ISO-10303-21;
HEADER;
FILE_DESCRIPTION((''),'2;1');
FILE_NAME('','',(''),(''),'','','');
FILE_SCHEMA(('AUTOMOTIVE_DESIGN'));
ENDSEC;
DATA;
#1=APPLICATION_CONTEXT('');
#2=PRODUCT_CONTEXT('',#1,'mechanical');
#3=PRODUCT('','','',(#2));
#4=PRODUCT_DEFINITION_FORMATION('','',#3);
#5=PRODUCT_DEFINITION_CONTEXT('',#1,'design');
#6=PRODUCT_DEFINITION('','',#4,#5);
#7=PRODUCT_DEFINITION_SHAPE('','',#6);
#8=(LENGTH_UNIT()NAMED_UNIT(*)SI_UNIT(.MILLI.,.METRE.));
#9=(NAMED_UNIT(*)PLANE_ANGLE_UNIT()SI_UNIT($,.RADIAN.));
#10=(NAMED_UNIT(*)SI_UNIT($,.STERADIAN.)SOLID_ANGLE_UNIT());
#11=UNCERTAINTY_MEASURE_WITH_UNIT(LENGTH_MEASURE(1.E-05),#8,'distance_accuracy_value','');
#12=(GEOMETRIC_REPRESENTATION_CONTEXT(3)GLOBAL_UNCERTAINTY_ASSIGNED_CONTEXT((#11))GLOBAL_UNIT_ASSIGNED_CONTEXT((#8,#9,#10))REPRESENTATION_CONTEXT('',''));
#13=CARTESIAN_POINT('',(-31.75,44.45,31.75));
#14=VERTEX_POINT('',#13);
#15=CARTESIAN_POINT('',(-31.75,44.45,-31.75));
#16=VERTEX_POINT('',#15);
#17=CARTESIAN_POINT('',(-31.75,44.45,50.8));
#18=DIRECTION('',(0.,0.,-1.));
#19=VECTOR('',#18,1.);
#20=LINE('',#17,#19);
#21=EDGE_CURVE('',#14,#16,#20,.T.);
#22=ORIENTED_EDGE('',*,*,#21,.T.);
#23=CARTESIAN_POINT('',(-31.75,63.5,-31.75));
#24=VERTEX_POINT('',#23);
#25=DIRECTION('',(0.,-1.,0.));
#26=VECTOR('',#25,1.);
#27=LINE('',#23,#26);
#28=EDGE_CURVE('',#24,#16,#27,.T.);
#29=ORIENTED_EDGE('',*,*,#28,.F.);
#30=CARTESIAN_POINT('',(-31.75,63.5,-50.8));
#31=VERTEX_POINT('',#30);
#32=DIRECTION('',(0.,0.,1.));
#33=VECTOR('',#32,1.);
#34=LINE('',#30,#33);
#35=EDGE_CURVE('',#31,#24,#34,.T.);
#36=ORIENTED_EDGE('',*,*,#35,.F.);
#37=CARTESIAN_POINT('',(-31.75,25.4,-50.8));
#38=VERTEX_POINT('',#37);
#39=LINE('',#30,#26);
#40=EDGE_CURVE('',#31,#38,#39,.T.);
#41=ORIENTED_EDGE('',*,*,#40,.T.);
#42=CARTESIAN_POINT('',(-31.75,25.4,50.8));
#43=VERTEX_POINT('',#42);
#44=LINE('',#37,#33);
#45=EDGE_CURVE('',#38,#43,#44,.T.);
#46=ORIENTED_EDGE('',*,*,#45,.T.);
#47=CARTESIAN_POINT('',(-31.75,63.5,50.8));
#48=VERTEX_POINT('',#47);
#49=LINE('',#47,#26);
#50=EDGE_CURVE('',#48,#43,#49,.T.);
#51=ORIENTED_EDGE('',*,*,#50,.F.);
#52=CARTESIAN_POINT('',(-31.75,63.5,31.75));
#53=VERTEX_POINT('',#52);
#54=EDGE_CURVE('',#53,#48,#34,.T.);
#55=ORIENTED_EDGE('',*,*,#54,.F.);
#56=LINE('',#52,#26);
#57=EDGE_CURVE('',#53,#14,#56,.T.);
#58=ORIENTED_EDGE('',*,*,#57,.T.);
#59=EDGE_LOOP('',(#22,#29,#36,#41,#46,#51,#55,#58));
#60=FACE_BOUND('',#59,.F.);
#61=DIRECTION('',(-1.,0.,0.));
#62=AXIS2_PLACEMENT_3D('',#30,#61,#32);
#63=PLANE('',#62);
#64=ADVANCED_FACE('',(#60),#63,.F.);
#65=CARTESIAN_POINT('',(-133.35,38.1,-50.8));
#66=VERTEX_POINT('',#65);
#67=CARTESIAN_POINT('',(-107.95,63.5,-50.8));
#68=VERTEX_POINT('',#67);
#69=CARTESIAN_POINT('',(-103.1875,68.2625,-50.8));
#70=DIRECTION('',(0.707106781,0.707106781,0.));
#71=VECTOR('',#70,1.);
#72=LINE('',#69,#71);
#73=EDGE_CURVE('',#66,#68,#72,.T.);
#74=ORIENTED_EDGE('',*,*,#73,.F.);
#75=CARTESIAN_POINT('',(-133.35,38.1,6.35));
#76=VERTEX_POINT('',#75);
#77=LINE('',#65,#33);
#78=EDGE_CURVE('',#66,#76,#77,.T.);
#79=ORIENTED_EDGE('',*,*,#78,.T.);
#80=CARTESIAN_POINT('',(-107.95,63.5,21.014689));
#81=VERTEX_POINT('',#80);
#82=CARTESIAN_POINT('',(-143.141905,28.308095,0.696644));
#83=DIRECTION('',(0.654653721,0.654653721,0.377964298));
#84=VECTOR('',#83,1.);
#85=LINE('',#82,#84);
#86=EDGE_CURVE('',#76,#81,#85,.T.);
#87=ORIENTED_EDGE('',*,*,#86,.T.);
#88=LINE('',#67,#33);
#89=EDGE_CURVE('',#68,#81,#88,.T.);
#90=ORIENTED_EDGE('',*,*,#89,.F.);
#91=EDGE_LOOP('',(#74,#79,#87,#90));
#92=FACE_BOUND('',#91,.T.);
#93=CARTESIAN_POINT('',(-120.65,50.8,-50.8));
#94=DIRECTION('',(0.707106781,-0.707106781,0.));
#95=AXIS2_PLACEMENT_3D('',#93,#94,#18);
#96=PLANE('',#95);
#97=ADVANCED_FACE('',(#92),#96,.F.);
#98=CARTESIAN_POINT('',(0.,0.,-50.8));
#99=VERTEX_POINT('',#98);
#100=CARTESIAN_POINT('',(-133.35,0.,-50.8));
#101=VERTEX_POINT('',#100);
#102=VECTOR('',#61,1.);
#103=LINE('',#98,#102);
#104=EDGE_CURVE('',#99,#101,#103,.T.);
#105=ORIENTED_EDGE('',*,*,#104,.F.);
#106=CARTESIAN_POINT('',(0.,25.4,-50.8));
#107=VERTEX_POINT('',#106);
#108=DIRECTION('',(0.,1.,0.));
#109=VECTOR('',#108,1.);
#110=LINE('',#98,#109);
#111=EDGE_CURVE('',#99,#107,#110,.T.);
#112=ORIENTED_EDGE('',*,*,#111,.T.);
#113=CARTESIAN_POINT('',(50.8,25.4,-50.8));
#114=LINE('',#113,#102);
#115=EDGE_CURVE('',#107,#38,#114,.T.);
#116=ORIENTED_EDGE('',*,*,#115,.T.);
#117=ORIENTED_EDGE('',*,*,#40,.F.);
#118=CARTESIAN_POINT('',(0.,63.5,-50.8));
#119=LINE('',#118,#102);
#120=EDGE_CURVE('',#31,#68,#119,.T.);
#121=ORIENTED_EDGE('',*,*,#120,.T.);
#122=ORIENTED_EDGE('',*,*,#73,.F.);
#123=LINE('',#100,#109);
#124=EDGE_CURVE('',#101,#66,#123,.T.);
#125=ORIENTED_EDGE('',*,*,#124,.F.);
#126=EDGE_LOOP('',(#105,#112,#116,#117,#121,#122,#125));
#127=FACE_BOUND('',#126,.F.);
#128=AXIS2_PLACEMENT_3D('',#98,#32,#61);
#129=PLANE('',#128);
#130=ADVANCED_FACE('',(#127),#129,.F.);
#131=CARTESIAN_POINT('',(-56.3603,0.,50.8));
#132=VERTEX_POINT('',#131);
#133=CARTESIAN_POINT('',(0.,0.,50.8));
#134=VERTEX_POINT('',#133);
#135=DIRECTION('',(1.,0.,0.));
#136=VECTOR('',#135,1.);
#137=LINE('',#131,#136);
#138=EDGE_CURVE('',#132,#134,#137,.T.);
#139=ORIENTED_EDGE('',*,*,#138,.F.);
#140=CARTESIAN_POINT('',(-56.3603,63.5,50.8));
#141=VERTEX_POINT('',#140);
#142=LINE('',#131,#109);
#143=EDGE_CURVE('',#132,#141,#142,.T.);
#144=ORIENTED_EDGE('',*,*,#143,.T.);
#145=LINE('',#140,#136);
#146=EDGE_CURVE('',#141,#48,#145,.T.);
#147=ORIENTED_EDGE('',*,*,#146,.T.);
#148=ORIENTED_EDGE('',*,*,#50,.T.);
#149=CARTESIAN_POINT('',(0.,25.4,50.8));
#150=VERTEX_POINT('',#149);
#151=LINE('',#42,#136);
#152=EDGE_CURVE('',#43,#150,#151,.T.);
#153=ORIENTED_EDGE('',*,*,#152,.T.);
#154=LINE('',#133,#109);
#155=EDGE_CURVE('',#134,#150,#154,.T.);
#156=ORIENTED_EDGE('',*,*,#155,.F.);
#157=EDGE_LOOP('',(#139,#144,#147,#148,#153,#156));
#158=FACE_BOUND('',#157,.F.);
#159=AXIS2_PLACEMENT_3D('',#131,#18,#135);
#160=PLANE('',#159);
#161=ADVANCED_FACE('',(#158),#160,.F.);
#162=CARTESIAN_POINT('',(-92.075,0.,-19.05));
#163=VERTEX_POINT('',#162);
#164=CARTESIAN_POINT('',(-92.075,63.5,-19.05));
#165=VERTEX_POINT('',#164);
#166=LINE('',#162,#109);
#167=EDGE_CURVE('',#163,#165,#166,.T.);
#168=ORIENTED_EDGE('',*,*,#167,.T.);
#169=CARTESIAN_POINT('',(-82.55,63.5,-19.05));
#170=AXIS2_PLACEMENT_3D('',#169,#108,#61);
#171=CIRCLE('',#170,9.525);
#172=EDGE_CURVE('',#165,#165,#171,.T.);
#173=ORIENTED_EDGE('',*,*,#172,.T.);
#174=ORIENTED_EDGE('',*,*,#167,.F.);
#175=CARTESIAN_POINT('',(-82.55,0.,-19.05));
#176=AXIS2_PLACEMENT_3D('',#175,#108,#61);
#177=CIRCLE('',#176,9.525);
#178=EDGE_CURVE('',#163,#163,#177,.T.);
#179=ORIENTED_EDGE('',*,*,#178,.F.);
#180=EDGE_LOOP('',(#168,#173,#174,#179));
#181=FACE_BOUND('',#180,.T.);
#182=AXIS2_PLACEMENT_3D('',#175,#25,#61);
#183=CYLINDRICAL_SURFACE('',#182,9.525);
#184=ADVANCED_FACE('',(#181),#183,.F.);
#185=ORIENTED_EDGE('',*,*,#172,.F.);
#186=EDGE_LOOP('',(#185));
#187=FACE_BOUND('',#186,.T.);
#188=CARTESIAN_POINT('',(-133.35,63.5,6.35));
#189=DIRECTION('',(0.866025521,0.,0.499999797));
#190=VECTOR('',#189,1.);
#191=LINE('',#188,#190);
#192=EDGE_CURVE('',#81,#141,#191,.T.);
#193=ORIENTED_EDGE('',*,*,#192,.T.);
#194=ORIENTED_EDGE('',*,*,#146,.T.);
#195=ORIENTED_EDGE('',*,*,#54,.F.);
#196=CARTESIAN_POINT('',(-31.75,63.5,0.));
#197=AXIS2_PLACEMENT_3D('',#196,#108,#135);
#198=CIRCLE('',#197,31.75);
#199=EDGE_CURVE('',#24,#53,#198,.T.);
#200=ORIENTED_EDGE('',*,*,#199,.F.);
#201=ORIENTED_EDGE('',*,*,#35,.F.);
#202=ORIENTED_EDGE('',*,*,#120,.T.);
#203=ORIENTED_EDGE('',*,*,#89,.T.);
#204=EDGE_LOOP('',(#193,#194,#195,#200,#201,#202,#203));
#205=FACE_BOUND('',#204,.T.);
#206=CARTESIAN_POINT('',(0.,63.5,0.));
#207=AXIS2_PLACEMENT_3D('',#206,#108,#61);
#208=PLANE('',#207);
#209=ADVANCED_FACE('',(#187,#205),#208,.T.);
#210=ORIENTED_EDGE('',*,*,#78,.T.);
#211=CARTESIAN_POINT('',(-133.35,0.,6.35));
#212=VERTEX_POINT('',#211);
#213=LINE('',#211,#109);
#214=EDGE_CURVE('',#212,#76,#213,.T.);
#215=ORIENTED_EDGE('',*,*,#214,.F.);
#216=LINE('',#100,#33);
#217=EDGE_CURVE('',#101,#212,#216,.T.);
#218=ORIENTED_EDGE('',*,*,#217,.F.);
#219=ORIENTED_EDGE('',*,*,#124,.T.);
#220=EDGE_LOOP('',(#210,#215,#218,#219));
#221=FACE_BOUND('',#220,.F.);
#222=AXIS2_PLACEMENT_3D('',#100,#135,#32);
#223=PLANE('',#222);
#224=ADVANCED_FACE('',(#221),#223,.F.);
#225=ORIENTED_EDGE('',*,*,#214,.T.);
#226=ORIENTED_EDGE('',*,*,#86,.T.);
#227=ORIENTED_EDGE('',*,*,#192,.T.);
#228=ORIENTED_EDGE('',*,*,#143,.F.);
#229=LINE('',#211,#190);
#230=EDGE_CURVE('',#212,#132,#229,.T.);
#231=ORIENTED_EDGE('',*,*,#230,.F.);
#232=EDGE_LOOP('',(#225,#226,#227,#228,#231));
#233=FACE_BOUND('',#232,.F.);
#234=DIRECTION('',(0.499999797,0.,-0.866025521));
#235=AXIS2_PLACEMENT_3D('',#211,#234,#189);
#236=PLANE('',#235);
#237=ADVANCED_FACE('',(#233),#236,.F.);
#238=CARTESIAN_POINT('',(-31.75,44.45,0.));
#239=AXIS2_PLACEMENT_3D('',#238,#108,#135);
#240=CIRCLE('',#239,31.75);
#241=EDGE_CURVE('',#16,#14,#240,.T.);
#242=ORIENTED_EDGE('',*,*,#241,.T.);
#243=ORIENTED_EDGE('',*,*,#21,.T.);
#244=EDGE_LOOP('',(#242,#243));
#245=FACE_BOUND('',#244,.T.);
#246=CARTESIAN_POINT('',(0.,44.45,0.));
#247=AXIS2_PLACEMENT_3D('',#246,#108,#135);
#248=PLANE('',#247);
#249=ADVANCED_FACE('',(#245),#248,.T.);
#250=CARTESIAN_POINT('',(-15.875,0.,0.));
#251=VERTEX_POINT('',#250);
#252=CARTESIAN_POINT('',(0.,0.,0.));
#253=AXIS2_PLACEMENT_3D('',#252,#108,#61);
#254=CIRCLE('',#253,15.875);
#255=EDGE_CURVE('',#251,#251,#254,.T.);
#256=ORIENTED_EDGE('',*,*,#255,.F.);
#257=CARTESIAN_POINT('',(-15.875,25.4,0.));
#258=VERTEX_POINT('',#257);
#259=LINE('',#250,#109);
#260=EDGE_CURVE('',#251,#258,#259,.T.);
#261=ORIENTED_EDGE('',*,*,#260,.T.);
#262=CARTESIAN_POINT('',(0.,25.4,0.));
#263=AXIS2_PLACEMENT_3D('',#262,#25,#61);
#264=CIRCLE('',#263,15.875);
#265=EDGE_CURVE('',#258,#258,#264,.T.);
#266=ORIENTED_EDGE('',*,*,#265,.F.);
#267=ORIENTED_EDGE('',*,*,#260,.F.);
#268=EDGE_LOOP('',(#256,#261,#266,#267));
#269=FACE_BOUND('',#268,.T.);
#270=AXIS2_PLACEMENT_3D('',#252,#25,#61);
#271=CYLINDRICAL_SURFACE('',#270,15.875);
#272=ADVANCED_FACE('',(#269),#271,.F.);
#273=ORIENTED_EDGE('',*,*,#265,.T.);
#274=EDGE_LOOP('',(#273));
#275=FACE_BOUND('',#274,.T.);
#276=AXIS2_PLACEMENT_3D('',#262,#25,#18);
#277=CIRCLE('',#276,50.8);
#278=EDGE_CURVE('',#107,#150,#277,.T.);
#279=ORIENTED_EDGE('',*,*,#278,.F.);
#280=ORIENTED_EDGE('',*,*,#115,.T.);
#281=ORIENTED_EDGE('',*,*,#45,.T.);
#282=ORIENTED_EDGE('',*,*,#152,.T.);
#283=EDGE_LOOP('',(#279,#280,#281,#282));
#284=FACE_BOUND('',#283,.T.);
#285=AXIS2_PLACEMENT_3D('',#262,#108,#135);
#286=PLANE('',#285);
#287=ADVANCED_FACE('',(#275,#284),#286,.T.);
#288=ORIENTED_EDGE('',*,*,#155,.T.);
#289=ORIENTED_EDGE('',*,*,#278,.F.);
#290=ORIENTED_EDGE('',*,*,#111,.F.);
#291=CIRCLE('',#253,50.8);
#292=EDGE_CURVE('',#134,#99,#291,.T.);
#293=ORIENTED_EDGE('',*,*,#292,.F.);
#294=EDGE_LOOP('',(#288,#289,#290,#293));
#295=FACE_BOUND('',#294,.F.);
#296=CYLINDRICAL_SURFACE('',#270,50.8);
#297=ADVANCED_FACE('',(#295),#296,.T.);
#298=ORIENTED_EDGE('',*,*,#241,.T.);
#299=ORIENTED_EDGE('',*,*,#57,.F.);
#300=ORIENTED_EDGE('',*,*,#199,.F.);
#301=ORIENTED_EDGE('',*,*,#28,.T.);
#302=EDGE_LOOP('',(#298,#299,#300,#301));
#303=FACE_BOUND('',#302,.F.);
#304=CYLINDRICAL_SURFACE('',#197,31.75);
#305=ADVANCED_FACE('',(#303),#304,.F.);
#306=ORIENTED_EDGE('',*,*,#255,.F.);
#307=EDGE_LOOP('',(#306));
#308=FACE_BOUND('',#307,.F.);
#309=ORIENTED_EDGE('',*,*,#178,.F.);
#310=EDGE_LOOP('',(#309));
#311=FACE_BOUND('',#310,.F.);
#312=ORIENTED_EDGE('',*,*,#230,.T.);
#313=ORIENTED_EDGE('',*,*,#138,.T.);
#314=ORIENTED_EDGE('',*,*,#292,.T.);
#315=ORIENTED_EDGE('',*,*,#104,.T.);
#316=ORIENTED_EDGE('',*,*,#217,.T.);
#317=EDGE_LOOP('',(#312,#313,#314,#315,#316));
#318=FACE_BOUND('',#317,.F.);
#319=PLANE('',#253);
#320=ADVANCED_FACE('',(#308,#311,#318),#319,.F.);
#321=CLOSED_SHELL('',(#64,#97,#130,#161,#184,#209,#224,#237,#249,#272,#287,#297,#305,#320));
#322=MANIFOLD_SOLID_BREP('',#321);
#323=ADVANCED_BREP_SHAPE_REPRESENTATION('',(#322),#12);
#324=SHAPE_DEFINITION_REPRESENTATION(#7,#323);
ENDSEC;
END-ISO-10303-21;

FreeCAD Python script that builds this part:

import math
import FreeCAD as App
import Part
import Sketcher
Q = App.Units.Quantity


def edges_at(feature, points):
    """Names of the edges that pass closest to the given points."""
    edges = feature.Shape.Edges
    near = lambda p: min(range(len(edges)), key=lambda i: edges[i].distToShape(Part.Vertex(*p))[0])
    return sorted({f"Edge{near(p) + 1}" for p in points})

doc = App.newDocument("Part")
body = doc.addObject("PartDesign::Body", "Body")

# Sketch on XZ plane
sketch1 = doc.addObject("Sketcher::SketchObject", "Sketch")
body.addObject(sketch1)
sketch1.AttachmentSupport = (doc.XZ_Plane, [""])
sketch1.MapMode = "FlatFace"
sketch1.addGeometry([
    Part.ArcOfCircle(Part.Circle(App.Vector(0, 0, 0), App.Vector(0, 0, 1), 51), math.radians(-90), math.radians(90)),  # 0
    Part.LineSegment(App.Vector(0, -51, 0), App.Vector(-133, -51, 0)),  # 1
    Part.LineSegment(App.Vector(-133, -51, 0), App.Vector(-133, 6, 0)),  # 2
    Part.LineSegment(App.Vector(-133, 6, 0), App.Vector(-56, 51, 0)),  # 3
    Part.LineSegment(App.Vector(-56, 51, 0), App.Vector(0, 51, 0)),  # 4
    Part.Circle(App.Vector(0, 0, 0), App.Vector(0, 0, 1), 16),  # 5
    Part.Circle(App.Vector(-83, -19, 0), App.Vector(0, 0, 1), 10),  # 6
], False)
sketch1.addConstraint([
    Sketcher.Constraint("Tangent", 0, 1, 1, 1),
    Sketcher.Constraint("Coincident", 1, 2, 2, 1),
    Sketcher.Constraint("Coincident", 2, 2, 3, 1),
    Sketcher.Constraint("Coincident", 3, 2, 4, 1),
    Sketcher.Constraint("Tangent", 4, 2, 0, 2),
    Sketcher.Constraint("Horizontal", 1),
    Sketcher.Constraint("Vertical", 2),
    Sketcher.Constraint("Horizontal", 4),
    Sketcher.Constraint("Coincident", 0, 3, -1, 1),
    Sketcher.Constraint("Coincident", 5, 3, -1, 1),
    Sketcher.Constraint("Radius", 0, Q("2 in")),
    Sketcher.Constraint("Diameter", 5, Q("1.25 in")),
    Sketcher.Constraint("Diameter", 6, Q("0.75 in")),
    Sketcher.Constraint("DistanceX", 1, 2, 1, 1, Q("5.25 in")),
    Sketcher.Constraint("DistanceY", 2, 1, 2, 2, Q("2.25 in")),
    Sketcher.Constraint("DistanceX", 6, 3, -1, 1, Q("3.25 in")),
    Sketcher.Constraint("DistanceY", 6, 3, -1, 1, Q("0.75 in")),
    Sketcher.Constraint("Angle", 3, Q("30 deg")),
])
pad1 = doc.addObject("PartDesign::Pad", "Pad")
body.addObject(pad1)
pad1.Profile = sketch1
pad1.Length = Q("2.5 in")
pad1.Reversed = True

# Sketch on XZ plane
sketch2 = doc.addObject("Sketcher::SketchObject", "Sketch001")
body.addObject(sketch2)
sketch2.AttachmentSupport = (doc.XZ_Plane, [""])
sketch2.MapMode = "FlatFace"
sketch2.AttachmentOffset = App.Placement(App.Vector(0, 0, -2.5 * 25.4), App.Rotation())
sketch2.addGeometry([
    Part.LineSegment(App.Vector(-32, -51, 0), App.Vector(-32, 51, 0)),
    Part.LineSegment(App.Vector(-32, 51, 0), App.Vector(0, 51, 0)),
    Part.ArcOfCircle(Part.Circle(App.Vector(0, 0, 0), App.Vector(0, 0, 1), 51), math.radians(-90), math.radians(90)),
    Part.LineSegment(App.Vector(0, -51, 0), App.Vector(-32, -51, 0)),
], False)
sketch2.addConstraint([
    Sketcher.Constraint("Coincident", 0, 2, 1, 1),
    Sketcher.Constraint("Tangent", 1, 2, 2, 2),
    Sketcher.Constraint("Tangent", 2, 1, 3, 1),
    Sketcher.Constraint("Coincident", 3, 2, 0, 1),
    Sketcher.Constraint("Vertical", 0),
    Sketcher.Constraint("Horizontal", 1),
    Sketcher.Constraint("Horizontal", 3),
    Sketcher.Constraint("Coincident", 2, 3, -1, 1),
    Sketcher.Constraint("Radius", 2, Q("2 in")),
    Sketcher.Constraint("DistanceX", 1, 1, 1, 2, Q("1.25 in")),
])
pocket1 = doc.addObject("PartDesign::Pocket", "Pocket")
body.addObject(pocket1)
pocket1.Profile = sketch2
pocket1.Length = Q("1.5 in")
pocket1.Reversed = True

# Sketch on XZ plane
sketch3 = doc.addObject("Sketcher::SketchObject", "Sketch002")
body.addObject(sketch3)
sketch3.AttachmentSupport = (doc.XZ_Plane, [""])
sketch3.MapMode = "FlatFace"
sketch3.AttachmentOffset = App.Placement(App.Vector(0, 0, -2.5 * 25.4), App.Rotation())
sketch3.addGeometry([
    Part.ArcOfCircle(Part.Circle(App.Vector(-32, 0, 0), App.Vector(0, 0, 1), 32), math.radians(90), math.radians(270)),
    Part.LineSegment(App.Vector(-32, 32, 0), App.Vector(-32, -32, 0)),
], False)
sketch3.addConstraint([
    Sketcher.Constraint("Coincident", 0, 1, 1, 1),
    Sketcher.Constraint("Coincident", 1, 2, 0, 2),
    Sketcher.Constraint("Vertical", 1),
    Sketcher.Constraint("PointOnObject", 0, 3, -1),
    Sketcher.Constraint("Radius", 0, Q("1.25 in")),
    Sketcher.Constraint("DistanceX", 0, 3, -1, 1, Q("1.25 in")),
    Sketcher.Constraint("DistanceX", 0, 1, -1, 1, Q("1.25 in")),
])
pocket2 = doc.addObject("PartDesign::Pocket", "Pocket001")
body.addObject(pocket2)
pocket2.Profile = sketch3
pocket2.Length = Q("0.75 in")
pocket2.Reversed = True
doc.recompute()

chamfer = doc.addObject("PartDesign::Chamfer", "Chamfer")
body.addObject(chamfer)
chamfer.Base = (pocket2, edges_at(pocket2, [(-133.35, 63.5, -22.225)]))
chamfer.Size = Q("1 in")

doc.recompute()
